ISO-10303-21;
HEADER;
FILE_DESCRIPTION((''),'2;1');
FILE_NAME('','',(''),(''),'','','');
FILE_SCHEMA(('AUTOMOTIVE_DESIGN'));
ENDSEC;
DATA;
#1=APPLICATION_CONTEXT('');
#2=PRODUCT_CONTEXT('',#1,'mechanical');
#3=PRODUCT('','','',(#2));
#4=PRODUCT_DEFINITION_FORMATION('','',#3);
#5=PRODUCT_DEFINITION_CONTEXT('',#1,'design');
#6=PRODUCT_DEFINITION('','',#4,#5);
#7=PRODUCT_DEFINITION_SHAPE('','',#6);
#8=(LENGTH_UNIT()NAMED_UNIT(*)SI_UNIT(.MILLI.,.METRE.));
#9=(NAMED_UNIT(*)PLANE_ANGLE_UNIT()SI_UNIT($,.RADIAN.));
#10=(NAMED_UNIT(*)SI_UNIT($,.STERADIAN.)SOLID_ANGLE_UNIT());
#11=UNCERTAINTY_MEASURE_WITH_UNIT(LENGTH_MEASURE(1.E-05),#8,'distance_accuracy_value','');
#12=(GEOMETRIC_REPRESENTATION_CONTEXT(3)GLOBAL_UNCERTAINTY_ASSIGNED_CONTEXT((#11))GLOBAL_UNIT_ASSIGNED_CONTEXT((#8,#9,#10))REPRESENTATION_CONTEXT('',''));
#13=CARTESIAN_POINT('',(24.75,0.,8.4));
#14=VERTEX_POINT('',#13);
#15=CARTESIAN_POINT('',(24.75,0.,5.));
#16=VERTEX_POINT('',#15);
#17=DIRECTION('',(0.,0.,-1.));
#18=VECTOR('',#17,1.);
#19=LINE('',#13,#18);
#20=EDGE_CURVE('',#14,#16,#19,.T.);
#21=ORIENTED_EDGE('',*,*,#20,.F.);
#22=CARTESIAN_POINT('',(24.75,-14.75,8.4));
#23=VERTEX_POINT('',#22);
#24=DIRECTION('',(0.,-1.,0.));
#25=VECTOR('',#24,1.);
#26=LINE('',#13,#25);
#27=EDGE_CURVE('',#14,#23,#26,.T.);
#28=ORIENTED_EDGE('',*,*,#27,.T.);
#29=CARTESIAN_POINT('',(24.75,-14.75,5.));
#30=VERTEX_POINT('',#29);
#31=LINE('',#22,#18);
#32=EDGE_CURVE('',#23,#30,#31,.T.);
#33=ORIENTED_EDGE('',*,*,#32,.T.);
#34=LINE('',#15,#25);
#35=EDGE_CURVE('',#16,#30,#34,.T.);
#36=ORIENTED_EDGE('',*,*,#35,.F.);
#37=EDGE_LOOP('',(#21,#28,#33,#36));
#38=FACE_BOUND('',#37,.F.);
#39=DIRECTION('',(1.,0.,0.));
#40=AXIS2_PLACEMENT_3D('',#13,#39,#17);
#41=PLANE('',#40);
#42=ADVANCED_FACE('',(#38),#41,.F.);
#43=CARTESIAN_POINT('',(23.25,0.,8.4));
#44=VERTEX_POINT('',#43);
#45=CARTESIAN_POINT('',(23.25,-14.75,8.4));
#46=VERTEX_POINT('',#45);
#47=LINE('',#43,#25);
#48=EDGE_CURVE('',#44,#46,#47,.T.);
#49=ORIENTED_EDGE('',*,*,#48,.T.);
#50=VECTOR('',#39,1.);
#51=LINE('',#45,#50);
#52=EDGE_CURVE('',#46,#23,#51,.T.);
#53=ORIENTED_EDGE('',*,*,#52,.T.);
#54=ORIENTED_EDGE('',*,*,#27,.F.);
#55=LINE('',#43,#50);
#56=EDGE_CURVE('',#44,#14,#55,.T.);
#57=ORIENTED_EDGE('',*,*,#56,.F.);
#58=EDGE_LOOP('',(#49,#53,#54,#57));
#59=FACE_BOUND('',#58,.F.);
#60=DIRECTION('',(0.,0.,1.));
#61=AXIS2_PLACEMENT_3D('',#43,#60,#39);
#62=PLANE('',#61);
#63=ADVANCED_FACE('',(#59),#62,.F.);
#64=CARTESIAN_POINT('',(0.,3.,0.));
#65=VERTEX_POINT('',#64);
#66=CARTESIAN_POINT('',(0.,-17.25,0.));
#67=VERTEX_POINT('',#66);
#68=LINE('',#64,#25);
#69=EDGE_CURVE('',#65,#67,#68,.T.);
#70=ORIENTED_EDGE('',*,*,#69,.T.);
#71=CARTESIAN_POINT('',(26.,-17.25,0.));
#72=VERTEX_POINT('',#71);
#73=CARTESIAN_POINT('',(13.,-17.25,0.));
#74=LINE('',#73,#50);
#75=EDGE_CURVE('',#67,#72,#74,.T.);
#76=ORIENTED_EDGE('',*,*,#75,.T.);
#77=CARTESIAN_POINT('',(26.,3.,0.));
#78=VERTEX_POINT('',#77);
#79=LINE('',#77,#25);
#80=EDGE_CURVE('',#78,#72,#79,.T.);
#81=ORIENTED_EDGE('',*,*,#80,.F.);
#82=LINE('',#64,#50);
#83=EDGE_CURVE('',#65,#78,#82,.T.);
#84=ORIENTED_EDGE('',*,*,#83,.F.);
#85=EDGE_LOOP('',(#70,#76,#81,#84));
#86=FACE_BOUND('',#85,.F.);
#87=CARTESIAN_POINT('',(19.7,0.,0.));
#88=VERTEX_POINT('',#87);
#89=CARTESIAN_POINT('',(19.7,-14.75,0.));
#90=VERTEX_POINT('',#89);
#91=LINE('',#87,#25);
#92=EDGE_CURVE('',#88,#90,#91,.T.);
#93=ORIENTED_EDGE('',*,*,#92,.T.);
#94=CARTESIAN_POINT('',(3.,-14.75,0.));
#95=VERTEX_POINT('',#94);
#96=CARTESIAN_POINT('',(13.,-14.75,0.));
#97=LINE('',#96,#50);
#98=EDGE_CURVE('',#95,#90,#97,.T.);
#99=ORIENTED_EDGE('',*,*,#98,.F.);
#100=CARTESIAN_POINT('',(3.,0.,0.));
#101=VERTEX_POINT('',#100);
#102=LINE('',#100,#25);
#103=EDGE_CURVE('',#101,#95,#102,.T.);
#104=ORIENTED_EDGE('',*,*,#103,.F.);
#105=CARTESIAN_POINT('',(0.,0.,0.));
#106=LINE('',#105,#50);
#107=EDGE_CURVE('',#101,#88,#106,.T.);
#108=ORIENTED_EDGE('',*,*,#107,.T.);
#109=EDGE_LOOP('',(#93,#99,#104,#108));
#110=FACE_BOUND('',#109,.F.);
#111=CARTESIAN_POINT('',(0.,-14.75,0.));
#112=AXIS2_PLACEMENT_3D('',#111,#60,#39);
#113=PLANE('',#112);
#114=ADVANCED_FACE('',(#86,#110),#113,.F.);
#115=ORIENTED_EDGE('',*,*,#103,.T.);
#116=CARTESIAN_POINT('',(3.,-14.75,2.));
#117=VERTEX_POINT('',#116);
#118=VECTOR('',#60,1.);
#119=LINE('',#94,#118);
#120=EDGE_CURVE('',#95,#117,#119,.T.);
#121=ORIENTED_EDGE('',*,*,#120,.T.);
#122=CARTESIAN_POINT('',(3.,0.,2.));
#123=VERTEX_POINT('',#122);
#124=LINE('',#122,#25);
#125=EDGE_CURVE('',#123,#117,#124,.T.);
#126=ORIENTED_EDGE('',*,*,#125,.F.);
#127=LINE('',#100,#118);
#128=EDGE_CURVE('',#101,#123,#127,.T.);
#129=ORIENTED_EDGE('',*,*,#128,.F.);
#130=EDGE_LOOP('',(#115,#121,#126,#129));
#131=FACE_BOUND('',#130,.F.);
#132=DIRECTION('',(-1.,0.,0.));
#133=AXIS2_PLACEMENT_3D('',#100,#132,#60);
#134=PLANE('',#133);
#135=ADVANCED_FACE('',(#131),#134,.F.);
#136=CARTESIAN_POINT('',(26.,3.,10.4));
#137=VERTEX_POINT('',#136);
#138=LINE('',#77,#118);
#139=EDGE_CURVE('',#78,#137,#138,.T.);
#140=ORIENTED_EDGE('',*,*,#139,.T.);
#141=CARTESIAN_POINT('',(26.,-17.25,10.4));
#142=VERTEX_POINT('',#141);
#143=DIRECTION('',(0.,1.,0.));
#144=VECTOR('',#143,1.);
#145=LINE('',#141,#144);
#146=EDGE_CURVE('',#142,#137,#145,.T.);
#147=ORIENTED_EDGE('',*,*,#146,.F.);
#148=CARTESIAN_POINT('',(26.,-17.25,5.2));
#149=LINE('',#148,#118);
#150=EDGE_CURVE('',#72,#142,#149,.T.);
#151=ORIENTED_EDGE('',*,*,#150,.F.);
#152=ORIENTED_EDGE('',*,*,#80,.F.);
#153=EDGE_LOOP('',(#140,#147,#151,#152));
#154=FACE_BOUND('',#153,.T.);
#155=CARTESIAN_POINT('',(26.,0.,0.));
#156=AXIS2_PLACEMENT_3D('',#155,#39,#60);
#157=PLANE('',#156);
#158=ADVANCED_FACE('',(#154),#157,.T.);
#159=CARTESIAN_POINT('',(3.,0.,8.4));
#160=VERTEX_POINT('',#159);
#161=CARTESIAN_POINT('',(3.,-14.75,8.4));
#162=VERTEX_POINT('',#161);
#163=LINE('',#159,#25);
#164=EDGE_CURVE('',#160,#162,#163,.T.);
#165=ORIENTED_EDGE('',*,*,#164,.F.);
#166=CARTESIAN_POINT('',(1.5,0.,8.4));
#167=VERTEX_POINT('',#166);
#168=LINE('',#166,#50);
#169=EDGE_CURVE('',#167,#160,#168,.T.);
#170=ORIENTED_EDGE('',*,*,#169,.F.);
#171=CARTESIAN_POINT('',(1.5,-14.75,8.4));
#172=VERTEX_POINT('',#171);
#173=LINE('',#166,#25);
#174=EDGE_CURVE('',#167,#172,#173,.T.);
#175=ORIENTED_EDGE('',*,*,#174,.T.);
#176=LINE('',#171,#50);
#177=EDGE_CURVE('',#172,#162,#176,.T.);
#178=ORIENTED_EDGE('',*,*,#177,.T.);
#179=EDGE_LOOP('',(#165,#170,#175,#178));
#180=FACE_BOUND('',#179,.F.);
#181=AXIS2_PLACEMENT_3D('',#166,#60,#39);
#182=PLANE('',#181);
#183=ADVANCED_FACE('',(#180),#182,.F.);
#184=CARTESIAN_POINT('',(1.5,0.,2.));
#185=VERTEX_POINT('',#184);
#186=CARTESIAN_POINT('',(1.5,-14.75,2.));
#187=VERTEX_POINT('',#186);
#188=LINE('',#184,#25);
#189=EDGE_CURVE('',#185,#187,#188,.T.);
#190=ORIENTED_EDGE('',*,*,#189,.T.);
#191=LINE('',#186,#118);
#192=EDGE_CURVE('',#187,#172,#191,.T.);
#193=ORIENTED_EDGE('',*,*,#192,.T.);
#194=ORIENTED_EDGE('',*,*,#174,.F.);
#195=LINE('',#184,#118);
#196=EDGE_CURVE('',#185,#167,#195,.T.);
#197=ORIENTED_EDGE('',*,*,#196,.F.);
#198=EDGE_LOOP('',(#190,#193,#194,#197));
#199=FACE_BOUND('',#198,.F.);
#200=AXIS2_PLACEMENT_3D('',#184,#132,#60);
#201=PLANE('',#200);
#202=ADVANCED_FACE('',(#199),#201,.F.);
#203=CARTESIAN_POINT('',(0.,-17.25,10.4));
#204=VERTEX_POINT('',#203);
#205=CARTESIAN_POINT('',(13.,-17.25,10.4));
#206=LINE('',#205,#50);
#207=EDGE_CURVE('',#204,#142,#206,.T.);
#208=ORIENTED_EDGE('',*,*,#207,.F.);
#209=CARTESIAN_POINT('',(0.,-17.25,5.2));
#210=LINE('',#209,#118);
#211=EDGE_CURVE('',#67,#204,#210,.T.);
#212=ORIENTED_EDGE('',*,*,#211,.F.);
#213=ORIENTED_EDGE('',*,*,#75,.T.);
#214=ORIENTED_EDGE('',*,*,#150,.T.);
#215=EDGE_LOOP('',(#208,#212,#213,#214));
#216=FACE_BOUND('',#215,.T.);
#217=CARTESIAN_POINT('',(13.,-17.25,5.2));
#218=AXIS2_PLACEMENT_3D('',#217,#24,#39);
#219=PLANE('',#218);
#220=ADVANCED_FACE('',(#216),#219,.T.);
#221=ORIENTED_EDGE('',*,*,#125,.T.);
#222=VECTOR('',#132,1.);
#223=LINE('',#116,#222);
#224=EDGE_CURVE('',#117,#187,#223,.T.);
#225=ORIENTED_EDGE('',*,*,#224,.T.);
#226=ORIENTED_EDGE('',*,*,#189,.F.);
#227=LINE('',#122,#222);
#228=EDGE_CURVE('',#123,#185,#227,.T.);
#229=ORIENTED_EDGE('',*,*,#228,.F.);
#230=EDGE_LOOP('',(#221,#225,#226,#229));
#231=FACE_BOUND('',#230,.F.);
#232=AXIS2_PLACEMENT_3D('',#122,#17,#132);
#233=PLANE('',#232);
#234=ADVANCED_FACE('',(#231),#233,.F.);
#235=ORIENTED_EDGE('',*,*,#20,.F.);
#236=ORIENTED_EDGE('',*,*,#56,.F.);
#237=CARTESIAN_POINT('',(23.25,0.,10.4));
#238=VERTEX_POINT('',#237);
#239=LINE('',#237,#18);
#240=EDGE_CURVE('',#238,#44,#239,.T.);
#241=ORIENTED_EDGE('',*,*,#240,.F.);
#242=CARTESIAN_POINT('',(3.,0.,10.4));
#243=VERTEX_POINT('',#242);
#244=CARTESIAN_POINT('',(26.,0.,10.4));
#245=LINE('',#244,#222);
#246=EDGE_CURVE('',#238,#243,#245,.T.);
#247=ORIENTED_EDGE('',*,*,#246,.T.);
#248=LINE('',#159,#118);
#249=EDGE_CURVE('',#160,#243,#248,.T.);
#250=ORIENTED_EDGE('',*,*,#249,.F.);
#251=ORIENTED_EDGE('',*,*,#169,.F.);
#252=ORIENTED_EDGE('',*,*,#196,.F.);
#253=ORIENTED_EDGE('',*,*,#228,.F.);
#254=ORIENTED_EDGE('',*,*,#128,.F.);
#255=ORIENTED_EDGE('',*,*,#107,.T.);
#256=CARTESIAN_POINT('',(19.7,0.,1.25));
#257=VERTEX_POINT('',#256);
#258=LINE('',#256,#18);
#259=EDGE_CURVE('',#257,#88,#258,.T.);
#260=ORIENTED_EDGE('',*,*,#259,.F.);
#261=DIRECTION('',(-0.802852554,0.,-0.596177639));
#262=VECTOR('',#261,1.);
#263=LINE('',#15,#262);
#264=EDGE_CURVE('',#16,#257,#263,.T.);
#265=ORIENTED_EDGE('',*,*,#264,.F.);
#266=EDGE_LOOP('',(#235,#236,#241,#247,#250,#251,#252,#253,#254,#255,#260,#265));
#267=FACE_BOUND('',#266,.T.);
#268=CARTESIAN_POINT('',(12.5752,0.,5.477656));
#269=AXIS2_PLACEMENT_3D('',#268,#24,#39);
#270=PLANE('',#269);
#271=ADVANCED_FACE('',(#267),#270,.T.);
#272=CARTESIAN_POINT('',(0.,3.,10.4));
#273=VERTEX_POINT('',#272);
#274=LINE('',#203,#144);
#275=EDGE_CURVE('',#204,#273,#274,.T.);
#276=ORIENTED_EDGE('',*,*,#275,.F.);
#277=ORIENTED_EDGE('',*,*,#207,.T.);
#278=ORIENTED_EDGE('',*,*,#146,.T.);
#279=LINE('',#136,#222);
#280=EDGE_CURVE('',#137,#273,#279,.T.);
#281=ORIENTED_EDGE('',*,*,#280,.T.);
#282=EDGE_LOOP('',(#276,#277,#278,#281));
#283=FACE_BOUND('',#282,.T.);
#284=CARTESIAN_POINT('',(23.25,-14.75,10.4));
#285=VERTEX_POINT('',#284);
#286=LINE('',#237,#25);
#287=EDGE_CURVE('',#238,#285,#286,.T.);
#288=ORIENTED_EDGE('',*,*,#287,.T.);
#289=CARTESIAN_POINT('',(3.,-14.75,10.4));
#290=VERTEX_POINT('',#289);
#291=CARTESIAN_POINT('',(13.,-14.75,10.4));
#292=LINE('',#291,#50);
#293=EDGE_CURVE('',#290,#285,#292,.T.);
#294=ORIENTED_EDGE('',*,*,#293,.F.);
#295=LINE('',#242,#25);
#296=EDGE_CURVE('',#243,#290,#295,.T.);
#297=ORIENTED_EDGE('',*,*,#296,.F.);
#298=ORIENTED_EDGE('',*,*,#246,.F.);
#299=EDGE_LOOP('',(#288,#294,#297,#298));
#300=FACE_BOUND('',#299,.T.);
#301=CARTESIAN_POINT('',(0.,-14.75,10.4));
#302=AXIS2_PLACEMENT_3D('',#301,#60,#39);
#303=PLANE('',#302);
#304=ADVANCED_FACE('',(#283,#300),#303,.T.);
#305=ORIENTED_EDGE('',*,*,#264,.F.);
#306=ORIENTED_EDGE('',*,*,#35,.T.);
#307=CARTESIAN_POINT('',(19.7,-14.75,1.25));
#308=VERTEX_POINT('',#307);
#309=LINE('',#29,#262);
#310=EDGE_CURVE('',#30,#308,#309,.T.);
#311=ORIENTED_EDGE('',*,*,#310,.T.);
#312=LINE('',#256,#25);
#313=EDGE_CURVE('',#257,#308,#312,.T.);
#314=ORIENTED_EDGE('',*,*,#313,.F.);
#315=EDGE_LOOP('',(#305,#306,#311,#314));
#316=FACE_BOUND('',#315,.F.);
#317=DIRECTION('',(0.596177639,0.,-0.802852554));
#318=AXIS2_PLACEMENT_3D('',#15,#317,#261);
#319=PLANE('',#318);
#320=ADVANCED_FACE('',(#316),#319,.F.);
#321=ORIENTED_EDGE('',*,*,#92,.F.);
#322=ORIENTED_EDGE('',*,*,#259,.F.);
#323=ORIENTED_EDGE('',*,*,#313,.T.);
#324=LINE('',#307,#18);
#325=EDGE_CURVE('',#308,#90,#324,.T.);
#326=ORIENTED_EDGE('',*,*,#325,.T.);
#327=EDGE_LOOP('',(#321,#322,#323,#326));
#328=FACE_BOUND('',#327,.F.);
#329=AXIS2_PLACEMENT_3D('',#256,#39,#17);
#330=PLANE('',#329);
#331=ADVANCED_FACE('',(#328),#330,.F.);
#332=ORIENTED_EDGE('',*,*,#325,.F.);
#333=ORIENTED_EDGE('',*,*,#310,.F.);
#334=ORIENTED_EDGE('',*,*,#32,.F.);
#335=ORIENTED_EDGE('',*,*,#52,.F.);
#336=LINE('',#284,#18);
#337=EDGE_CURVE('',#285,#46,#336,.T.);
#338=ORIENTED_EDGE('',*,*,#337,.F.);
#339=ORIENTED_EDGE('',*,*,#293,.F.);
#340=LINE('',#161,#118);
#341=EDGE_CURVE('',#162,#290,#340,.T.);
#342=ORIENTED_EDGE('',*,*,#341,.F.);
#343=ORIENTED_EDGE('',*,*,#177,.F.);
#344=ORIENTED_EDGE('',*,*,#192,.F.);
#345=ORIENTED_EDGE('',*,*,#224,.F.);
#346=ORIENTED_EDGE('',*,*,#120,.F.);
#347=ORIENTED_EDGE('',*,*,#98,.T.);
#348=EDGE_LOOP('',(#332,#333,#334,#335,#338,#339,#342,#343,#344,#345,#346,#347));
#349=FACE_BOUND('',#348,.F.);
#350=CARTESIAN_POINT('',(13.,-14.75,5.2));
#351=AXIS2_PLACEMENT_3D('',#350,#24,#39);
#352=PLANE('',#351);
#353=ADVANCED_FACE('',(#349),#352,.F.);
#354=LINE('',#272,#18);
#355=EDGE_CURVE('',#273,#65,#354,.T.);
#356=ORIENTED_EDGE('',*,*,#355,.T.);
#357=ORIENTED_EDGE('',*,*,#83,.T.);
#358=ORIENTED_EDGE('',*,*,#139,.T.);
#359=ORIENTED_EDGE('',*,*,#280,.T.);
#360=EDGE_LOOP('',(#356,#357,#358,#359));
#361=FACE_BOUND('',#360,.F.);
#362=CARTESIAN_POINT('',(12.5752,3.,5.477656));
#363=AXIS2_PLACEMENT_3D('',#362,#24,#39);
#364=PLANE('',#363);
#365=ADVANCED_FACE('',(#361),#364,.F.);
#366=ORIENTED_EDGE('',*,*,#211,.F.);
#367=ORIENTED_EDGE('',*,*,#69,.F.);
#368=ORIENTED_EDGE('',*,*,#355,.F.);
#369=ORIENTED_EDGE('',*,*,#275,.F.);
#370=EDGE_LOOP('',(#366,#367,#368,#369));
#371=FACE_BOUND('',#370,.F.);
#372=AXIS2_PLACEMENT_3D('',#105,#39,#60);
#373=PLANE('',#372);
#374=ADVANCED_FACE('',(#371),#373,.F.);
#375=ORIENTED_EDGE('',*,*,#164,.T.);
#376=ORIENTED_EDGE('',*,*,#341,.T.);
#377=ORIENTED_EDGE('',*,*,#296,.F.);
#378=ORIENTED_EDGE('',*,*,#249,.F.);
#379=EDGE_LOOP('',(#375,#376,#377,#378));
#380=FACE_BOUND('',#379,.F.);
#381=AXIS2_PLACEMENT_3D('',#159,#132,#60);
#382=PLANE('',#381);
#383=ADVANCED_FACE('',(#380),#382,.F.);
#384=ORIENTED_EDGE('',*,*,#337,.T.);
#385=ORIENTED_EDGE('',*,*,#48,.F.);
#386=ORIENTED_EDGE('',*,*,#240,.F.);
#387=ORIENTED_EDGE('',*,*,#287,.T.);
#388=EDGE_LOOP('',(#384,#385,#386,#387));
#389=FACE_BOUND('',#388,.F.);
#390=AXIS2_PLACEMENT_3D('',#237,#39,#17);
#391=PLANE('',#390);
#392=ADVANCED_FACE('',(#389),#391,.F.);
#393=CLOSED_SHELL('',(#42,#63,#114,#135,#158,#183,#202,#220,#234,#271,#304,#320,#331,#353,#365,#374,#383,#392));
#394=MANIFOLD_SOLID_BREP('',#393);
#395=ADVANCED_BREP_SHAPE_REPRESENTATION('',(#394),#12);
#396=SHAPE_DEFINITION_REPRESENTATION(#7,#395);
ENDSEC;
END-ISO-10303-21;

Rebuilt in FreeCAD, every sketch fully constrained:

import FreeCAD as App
import Part
import Sketcher


def add_polygon(sketch, points):
    """Adds a closed chain of lines whose ends are joined by coincident constraints."""
    first, n = sketch.GeometryCount, len(points)
    for a, b in zip(points, points[1:] + points[:1]):
        sketch.addGeometry(Part.LineSegment(App.Vector(*a, 0), App.Vector(*b, 0)), False)
    for i in range(n):
        sketch.addConstraint(Sketcher.Constraint("Coincident", first + i, 2, first + (i + 1) % n, 1))

doc = App.newDocument("Part")
body = doc.addObject("PartDesign::Body", "Body")

# Sketch on XZ plane
sketch1 = body.newObject("Sketcher::SketchObject", "Sketch")
sketch1.AttachmentSupport = (doc.getObject("XZ_Plane"), [""])
sketch1.MapMode = "FlatFace"
add_polygon(sketch1, [(3, 10.4), (0, 10.4), (0, 0), (3, 0), (3, 2), (1.5, 2), (1.5, 8.4), (3, 8.4)])  # lines 0-7
sketch1.addConstraint(Sketcher.Constraint("Horizontal", 0))
sketch1.addConstraint(Sketcher.Constraint("Vertical", 1))
sketch1.addConstraint(Sketcher.Constraint("Horizontal", 2))
sketch1.addConstraint(Sketcher.Constraint("Vertical", 3))
sketch1.addConstraint(Sketcher.Constraint("Horizontal", 4))
sketch1.addConstraint(Sketcher.Constraint("Vertical", 5))
sketch1.addConstraint(Sketcher.Constraint("Horizontal", 6))
sketch1.addConstraint(Sketcher.Constraint("Vertical", 7))
sketch1.addConstraint(Sketcher.Constraint("Coincident", 1, 2, -1, 1))
sketch1.addConstraint(Sketcher.Constraint("Vertical", 3, 2, 6, 2))
sketch1.addConstraint(Sketcher.Constraint("Equal", 3, 7))
sketch1.addConstraint(Sketcher.Constraint("DistanceX", 0, 2, 0, 1, 3.0))
sketch1.addConstraint(Sketcher.Constraint("DistanceY", 3, 1, 3, 2, 2.0))
sketch1.addConstraint(Sketcher.Constraint("DistanceX", 4, 2, 4, 1, 1.5))
sketch1.addConstraint(Sketcher.Constraint("DistanceY", 1, 2, 1, 1, 10.4))
pad1 = body.newObject("PartDesign::Pad", "Pad")
pad1.Profile = sketch1
pad1.Length = 14.75
body2 = doc.addObject("PartDesign::Body", "Body001")

# Sketch on XZ plane
sketch2 = body2.newObject("Sketcher::SketchObject", "Sketch001")
sketch2.AttachmentSupport = (doc.getObject("XZ_Plane001"), [""])
sketch2.MapMode = "FlatFace"
add_polygon(sketch2, [(26, 10.4), (23.2, 10.4), (23.2, 8.4), (24.8, 8.4), (24.8, 5), (19.7, 1.2), (19.7, 0), (26, 0)])  # lines 0-7
sketch2.addConstraint(Sketcher.Constraint("Horizontal", 0))
sketch2.addConstraint(Sketcher.Constraint("Vertical", 1))
sketch2.addConstraint(Sketcher.Constraint("Horizontal", 2))
sketch2.addConstraint(Sketcher.Constraint("Vertical", 3))
sketch2.addConstraint(Sketcher.Constraint("Vertical", 5))
sketch2.addConstraint(Sketcher.Constraint("Horizontal", 6))
sketch2.addConstraint(Sketcher.Constraint("Vertical", 7))
sketch2.addConstraint(Sketcher.Constraint("PointOnObject", 5, 2, -1))
sketch2.addConstraint(Sketcher.Constraint("DistanceY", 1, 2, 1, 1, 2.0))
sketch2.addConstraint(Sketcher.Constraint("DistanceX", 2, 1, 2, 2, 1.5))
sketch2.addConstraint(Sketcher.Constraint("DistanceX", 6, 1, 6, 2, 6.3))
sketch2.addConstraint(Sketcher.Constraint("DistanceY", 3, 2, 3, 1, 3.4))
sketch2.addConstraint(Sketcher.Constraint("DistanceY", 7, 1, 7, 2, 10.4))
sketch2.addConstraint(Sketcher.Constraint("DistanceX", -1, 1, 6, 2, 26.0))
sketch2.addConstraint(Sketcher.Constraint("DistanceX", 0, 2, 0, 1, 2.75))
sketch2.addConstraint(Sketcher.Constraint("DistanceY", 5, 2, 5, 1, 1.25))
pad2 = body2.newObject("PartDesign::Pad", "Pad001")
pad2.Profile = sketch2
pad2.Length = 14.75
body.AllowCompound = True
doc.recompute()

boolean = body.newObject("PartDesign::Boolean", "Boolean")
boolean.Type = "Fuse"
boolean.addObjects([body2])

# Sketch on XZ plane
sketch3 = body.newObject("Sketcher::SketchObject", "Sketch002")
sketch3.AttachmentSupport = (doc.getObject("XZ_Plane"), [""])
sketch3.MapMode = "FlatFace"
add_polygon(sketch3, [(26, 0), (26, 10), (0, 10), (0, 0)])  # lines 0-3
sketch3.addConstraint(Sketcher.Constraint("Vertical", 0))
sketch3.addConstraint(Sketcher.Constraint("Horizontal", 1))
sketch3.addConstraint(Sketcher.Constraint("Vertical", 2))
sketch3.addConstraint(Sketcher.Constraint("Horizontal", 3))
sketch3.addConstraint(Sketcher.Constraint("Coincident", 2, 2, -1, 1))
sketch3.addConstraint(Sketcher.Constraint("DistanceX", 1, 2, 1, 1, 26.0))
sketch3.addConstraint(Sketcher.Constraint("DistanceY", 0, 1, 0, 2, 10.4))
pad3 = body.newObject("PartDesign::Pad", "Pad002")
pad3.Profile = sketch3
pad3.Length = 3
pad3.Reversed = True

# Sketch on XZ plane
sketch4 = body.newObject("Sketcher::SketchObject", "Sketch003")
sketch4.AttachmentSupport = (doc.getObject("XZ_Plane"), [""])
sketch4.MapMode = "FlatFace"
sketch4.AttachmentOffset = App.Placement(App.Vector(0, 0, 14.75), App.Rotation())
add_polygon(sketch4, [(0, 10), (0, 0), (26, 0), (26, 10)])  # lines 0-3
sketch4.addConstraint(Sketcher.Constraint("Vertical", 0))
sketch4.addConstraint(Sketcher.Constraint("Horizontal", 1))
sketch4.addConstraint(Sketcher.Constraint("Vertical", 2))
sketch4.addConstraint(Sketcher.Constraint("Horizontal", 3))
sketch4.addConstraint(Sketcher.Constraint("Coincident", 0, 2, -1, 1))
sketch4.addConstraint(Sketcher.Constraint("DistanceX", 1, 1, 1, 2, 26.0))
sketch4.addConstraint(Sketcher.Constraint("DistanceY", 0, 2, 0, 1, 10.4))
pad4 = body.newObject("PartDesign::Pad", "Pad003")
pad4.Profile = sketch4
pad4.Length = 2.5

# Sketch on XZ plane
sketch5 = body.newObject("Sketcher::SketchObject", "Sketch004")
sketch5.AttachmentSupport = (doc.getObject("XZ_Plane"), [""])
sketch5.MapMode = "FlatFace"
add_polygon(sketch5, [(0, 10), (0, 0), (26, 0), (26, 10)])  # lines 0-3
sketch5.addConstraint(Sketcher.Constraint("Vertical", 0))
sketch5.addConstraint(Sketcher.Constraint("Horizontal", 1))
sketch5.addConstraint(Sketcher.Constraint("Vertical", 2))
sketch5.addConstraint(Sketcher.Constraint("Horizontal", 3))
sketch5.addConstraint(Sketcher.Constraint("Coincident", 0, 2, -1, 1))
sketch5.addConstraint(Sketcher.Constraint("DistanceX", 1, 1, 1, 2, 26.0))
sketch5.addConstraint(Sketcher.Constraint("DistanceY", 0, 2, 0, 1, 10.4))
pad5 = body.newObject("PartDesign::Pad", "Pad004")
pad5.Profile = sketch5
pad5.Length = 2.5
pad5.Reversed = True

doc.recompute()
